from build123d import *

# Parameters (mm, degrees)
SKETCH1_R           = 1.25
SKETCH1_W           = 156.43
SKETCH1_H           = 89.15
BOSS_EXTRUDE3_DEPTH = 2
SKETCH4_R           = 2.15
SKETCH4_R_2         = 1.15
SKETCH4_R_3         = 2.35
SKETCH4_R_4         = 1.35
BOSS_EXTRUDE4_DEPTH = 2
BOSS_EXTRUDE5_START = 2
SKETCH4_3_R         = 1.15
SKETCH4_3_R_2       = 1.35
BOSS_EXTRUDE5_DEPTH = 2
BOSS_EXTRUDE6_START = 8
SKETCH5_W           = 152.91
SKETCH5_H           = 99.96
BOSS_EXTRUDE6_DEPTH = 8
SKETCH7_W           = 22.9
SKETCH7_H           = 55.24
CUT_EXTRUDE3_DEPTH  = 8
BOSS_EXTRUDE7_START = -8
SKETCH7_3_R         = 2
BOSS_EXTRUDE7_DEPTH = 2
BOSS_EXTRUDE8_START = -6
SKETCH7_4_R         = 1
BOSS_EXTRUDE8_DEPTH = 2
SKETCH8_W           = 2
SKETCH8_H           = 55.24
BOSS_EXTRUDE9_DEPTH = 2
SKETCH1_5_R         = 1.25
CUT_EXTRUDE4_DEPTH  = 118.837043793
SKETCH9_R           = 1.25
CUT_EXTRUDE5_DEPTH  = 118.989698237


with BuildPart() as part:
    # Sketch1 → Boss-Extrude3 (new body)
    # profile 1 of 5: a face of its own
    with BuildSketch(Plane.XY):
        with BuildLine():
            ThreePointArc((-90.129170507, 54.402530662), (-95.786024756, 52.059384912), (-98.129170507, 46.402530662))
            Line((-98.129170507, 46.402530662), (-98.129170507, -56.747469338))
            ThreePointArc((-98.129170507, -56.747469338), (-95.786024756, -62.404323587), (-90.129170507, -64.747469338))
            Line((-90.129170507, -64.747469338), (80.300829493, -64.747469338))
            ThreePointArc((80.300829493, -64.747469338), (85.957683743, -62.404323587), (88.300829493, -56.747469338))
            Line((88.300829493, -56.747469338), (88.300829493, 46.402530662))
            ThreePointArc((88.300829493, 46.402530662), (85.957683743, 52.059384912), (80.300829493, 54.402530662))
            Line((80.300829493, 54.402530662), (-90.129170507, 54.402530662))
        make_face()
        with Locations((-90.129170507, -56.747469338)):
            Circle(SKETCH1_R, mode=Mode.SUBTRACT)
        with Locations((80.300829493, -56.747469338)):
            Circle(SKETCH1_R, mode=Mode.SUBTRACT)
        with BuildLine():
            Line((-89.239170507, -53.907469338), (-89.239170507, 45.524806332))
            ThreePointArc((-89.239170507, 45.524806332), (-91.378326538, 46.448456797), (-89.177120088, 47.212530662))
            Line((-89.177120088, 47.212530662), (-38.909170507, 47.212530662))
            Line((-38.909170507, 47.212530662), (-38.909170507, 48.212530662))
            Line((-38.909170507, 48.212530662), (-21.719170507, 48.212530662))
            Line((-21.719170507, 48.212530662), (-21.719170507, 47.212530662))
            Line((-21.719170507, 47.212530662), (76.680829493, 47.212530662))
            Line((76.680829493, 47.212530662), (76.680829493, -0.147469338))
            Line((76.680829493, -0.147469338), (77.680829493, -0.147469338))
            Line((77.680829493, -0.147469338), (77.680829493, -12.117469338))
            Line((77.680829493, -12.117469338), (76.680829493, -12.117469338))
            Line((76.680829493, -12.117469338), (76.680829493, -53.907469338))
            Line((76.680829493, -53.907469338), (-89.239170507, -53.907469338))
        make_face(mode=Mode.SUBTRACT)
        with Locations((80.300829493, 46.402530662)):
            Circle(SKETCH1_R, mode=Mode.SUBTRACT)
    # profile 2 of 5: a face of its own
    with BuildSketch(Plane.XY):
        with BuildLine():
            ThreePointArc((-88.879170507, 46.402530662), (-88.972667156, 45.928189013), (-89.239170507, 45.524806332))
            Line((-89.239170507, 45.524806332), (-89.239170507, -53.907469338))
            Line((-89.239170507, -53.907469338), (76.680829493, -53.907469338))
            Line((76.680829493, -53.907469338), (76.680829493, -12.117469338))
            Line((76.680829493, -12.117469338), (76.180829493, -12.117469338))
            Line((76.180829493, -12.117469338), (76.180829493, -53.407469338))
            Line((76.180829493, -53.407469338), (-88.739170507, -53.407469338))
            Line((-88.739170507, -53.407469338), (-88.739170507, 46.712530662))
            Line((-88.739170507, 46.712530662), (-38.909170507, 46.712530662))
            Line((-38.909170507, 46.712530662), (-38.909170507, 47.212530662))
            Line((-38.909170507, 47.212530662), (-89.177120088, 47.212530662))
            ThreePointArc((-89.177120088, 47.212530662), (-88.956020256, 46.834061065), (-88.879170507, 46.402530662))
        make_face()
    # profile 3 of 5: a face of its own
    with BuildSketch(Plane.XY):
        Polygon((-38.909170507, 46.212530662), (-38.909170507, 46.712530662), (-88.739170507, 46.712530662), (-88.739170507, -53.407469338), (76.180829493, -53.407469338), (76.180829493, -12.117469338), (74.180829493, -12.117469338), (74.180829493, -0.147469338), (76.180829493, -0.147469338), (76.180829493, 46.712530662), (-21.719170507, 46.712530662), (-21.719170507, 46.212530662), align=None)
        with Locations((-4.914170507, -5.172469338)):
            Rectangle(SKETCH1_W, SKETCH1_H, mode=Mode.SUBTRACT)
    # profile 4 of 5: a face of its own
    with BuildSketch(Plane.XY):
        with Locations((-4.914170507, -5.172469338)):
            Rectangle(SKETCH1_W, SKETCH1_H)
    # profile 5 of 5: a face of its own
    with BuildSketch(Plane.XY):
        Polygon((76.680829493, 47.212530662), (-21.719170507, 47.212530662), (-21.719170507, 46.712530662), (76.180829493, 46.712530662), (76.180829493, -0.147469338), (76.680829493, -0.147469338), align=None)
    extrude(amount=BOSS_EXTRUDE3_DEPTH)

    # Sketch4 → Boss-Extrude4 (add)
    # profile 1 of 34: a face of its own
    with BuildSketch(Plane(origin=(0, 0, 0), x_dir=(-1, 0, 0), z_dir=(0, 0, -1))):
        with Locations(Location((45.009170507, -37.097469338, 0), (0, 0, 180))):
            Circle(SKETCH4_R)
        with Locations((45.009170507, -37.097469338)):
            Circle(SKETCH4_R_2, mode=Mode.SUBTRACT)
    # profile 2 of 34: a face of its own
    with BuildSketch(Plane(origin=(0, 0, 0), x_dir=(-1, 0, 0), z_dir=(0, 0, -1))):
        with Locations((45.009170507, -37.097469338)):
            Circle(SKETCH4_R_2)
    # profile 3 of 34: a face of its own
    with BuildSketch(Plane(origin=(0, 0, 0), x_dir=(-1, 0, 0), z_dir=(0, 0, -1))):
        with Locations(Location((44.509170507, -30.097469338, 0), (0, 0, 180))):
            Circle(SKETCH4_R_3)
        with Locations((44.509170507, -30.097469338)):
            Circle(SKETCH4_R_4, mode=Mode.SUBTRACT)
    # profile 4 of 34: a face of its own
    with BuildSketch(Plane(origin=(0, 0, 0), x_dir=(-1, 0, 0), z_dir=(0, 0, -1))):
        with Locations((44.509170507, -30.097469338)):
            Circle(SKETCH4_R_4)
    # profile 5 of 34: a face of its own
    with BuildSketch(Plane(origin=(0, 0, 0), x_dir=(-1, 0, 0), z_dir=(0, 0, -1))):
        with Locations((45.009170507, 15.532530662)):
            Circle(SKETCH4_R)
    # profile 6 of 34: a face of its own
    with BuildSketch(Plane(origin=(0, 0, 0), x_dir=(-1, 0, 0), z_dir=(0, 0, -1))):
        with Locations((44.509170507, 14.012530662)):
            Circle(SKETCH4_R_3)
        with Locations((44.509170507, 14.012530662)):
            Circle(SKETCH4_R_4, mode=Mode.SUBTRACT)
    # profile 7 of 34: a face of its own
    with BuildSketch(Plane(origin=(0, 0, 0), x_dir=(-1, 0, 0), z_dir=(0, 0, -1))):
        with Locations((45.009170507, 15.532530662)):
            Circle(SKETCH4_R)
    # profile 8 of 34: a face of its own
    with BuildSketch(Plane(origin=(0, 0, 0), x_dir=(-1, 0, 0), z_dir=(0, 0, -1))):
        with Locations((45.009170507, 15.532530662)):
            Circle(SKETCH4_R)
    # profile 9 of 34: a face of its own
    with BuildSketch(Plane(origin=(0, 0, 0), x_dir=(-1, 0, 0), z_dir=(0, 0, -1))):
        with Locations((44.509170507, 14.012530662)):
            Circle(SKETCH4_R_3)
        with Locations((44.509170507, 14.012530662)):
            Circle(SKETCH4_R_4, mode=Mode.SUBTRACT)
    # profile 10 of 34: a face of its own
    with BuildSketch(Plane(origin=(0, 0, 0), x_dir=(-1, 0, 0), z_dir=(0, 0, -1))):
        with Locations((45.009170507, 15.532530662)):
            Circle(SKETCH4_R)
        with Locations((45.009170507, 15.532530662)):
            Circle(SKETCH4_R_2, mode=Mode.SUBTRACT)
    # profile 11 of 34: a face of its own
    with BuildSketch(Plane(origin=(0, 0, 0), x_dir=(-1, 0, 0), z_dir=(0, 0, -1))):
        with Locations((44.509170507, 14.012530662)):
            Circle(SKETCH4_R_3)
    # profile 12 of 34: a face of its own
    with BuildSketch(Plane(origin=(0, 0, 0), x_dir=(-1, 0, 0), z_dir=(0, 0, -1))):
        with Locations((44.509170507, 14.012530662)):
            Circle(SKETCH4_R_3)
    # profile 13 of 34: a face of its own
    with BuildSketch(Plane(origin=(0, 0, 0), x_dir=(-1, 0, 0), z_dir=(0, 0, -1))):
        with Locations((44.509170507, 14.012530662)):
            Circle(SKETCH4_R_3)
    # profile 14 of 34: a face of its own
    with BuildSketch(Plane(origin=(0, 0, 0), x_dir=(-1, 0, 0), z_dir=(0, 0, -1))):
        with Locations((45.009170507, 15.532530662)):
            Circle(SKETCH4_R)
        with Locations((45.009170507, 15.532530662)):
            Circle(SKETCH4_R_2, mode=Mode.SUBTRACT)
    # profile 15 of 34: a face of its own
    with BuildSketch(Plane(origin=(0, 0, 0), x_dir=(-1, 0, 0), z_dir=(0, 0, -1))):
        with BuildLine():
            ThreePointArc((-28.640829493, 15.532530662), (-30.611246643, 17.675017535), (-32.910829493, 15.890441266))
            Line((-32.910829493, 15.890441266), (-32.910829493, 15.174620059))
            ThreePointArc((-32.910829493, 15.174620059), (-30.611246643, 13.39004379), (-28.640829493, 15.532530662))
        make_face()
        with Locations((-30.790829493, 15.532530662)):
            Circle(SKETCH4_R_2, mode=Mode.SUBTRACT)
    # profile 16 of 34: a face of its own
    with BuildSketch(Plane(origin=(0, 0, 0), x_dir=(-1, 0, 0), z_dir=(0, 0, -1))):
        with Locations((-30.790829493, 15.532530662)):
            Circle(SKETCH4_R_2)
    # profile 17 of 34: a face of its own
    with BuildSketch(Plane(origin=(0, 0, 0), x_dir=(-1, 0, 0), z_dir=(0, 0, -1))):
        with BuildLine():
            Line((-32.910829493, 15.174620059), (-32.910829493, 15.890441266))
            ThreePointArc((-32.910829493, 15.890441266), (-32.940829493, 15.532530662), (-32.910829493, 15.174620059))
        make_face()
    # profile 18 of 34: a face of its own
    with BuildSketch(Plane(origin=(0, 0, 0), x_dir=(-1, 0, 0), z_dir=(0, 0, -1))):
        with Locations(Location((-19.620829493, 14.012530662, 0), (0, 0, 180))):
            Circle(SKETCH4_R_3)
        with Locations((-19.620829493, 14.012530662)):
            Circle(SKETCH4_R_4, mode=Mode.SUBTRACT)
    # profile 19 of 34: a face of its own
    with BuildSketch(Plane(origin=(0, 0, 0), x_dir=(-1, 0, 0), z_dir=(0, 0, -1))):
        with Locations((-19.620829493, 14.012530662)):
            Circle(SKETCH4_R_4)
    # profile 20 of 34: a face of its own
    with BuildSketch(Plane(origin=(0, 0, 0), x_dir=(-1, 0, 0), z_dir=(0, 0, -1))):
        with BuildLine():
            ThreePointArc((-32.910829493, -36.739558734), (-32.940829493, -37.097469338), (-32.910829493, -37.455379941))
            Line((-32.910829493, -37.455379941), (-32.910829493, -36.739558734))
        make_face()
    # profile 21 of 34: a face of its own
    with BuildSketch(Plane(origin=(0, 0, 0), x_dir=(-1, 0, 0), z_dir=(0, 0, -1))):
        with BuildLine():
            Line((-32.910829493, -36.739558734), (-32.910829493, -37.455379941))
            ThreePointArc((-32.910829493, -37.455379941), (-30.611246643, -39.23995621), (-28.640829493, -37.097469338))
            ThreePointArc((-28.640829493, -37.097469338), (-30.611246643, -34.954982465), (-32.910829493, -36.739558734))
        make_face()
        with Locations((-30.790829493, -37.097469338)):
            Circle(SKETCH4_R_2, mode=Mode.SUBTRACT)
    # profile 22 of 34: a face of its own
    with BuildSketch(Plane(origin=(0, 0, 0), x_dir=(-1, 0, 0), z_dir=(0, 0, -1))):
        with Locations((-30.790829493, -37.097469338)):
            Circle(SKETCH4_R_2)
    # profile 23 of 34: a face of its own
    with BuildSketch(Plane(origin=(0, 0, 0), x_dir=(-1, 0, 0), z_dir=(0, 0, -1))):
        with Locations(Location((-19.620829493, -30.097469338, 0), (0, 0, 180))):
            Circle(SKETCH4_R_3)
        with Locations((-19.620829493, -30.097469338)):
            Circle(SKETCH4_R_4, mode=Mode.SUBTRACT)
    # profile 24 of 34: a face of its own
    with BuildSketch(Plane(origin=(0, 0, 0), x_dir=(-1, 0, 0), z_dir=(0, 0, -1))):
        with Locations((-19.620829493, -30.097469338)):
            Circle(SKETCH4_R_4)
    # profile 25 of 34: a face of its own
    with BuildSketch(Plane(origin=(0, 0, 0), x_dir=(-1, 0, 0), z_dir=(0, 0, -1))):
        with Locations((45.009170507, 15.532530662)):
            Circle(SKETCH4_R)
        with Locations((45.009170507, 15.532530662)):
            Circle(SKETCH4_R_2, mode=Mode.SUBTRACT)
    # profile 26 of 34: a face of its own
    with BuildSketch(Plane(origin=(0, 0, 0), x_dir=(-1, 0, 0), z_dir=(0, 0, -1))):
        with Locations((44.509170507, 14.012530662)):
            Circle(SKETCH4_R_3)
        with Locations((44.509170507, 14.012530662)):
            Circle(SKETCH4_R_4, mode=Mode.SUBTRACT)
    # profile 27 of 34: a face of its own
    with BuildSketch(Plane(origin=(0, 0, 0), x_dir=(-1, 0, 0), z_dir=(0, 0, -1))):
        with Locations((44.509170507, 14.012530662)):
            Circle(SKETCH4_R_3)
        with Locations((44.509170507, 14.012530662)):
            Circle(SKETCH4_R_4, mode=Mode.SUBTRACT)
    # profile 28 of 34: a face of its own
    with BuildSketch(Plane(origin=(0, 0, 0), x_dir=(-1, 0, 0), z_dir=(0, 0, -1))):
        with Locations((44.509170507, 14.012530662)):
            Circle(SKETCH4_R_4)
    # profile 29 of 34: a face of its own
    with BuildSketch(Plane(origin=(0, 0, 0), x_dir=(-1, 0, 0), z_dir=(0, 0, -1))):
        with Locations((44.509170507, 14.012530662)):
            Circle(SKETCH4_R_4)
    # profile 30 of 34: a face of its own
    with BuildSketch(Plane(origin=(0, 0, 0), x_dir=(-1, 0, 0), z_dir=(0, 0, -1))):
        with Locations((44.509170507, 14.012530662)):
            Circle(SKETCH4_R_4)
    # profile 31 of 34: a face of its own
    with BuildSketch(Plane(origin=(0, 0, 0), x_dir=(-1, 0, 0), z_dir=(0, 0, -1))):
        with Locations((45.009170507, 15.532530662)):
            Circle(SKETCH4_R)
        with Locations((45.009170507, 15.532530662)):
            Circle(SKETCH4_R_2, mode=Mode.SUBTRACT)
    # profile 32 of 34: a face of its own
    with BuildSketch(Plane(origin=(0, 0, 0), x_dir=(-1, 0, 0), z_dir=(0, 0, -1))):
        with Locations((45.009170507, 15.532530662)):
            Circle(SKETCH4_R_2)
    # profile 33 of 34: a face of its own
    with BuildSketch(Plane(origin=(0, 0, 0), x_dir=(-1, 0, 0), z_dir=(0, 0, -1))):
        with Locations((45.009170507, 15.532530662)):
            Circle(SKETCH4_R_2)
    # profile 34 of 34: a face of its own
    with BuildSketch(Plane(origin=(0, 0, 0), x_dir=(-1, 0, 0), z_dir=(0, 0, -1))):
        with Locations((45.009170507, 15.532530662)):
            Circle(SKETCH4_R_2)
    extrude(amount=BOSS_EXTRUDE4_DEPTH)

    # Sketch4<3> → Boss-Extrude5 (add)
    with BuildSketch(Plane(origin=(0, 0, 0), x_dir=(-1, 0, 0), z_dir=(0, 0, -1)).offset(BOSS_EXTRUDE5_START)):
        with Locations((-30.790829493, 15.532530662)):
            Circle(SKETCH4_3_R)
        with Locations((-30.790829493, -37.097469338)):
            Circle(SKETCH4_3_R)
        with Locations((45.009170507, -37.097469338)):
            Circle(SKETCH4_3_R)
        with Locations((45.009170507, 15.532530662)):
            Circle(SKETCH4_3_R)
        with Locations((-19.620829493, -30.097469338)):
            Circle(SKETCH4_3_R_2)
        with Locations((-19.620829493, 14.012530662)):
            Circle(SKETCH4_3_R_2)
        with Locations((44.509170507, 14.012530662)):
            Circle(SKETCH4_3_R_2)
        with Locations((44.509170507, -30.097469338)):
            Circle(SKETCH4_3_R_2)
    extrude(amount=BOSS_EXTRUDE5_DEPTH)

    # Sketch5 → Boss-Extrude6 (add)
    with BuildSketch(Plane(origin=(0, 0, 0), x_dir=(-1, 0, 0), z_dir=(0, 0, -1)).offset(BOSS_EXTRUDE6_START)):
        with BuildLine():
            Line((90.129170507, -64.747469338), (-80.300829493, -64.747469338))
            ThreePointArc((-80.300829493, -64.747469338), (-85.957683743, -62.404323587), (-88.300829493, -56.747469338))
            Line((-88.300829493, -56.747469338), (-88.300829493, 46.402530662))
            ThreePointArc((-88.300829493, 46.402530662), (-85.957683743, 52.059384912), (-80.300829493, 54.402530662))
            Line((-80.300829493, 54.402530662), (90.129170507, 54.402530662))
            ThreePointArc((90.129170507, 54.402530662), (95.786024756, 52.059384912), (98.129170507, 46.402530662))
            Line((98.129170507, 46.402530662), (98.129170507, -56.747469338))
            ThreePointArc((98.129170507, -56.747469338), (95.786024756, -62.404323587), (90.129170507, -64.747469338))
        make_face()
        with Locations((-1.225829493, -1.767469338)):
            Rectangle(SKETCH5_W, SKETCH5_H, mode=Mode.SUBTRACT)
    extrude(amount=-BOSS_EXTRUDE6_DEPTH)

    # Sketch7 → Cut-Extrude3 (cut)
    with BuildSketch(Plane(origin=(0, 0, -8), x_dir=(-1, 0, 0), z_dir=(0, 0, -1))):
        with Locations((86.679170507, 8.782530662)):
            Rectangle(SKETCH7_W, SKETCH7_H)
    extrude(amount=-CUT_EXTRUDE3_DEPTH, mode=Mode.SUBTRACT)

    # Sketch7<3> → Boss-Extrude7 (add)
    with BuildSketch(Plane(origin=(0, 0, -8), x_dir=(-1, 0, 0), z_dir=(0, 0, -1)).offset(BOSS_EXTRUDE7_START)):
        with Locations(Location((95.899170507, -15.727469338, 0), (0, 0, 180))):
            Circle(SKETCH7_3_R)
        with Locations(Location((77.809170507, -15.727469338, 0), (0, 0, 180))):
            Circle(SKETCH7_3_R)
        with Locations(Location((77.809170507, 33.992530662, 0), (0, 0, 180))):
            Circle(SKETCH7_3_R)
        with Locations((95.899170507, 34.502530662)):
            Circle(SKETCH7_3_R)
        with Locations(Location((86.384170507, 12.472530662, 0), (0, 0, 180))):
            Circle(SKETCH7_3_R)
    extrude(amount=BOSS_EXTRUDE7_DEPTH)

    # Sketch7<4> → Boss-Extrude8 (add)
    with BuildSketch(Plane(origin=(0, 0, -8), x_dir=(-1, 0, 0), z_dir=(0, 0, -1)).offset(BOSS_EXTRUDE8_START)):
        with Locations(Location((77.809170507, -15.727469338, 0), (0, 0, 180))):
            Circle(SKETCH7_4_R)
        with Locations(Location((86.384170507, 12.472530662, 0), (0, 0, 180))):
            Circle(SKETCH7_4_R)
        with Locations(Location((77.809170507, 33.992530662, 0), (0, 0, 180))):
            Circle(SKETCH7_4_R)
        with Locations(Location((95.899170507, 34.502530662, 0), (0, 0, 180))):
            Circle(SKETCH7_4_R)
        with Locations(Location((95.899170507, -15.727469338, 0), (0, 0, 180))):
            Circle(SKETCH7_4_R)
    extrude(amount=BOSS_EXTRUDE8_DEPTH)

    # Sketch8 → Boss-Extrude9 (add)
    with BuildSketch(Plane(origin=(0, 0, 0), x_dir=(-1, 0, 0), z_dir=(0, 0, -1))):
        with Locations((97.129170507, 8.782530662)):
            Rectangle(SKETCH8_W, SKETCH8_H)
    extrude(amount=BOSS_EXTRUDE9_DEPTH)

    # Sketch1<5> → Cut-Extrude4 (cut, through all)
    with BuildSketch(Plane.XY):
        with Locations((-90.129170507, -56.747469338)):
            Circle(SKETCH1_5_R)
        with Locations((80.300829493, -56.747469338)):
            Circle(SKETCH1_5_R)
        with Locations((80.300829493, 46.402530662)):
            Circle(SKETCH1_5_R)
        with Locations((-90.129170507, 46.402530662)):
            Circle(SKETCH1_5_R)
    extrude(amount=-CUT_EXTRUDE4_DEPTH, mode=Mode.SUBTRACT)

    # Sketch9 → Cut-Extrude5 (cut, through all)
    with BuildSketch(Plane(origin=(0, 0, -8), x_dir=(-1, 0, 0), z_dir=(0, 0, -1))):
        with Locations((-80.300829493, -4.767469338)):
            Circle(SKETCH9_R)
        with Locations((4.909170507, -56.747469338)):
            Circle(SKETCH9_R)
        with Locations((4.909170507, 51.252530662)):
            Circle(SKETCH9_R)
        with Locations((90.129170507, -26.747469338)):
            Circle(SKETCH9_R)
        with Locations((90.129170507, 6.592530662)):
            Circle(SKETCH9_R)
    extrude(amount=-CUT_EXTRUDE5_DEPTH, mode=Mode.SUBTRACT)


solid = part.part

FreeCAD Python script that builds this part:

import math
import FreeCAD as App
import Part
import Sketcher

V = App.Vector

doc = App.newDocument("Part")
body = doc.addObject("PartDesign::Body", "Body")

# Sketch on XY plane
sketch1 = doc.addObject("Sketcher::SketchObject", "Sketch")
body.addObject(sketch1)
sketch1.AttachmentSupport = (doc.XY_Plane, [""])
sketch1.MapMode = "FlatFace"
sketch1.addGeometry(Part.ArcOfCircle(Part.Circle(V(-90.129171, 46.402531, 0), V(0, 0, 1), 8), math.radians(90), math.radians(180)), False)
sketch1.addGeometry(Part.LineSegment(V(-98.129171, 46.402531, 0), V(-98.129171, -56.747469, 0)), False)
sketch1.addGeometry(Part.ArcOfCircle(Part.Circle(V(-90.129171, -56.747469, 0), V(0, 0, 1), 8), math.radians(-180), math.radians(-90)), False)
sketch1.addGeometry(Part.LineSegment(V(-90.129171, -64.747469, 0), V(80.300829, -64.747469, 0)), False)
sketch1.addGeometry(Part.ArcOfCircle(Part.Circle(V(80.300829, -56.747469, 0), V(0, 0, 1), 8), math.radians(-90), math.radians(0)), False)
sketch1.addGeometry(Part.LineSegment(V(88.300829, -56.747469, 0), V(88.300829, 46.402531, 0)), False)
sketch1.addGeometry(Part.ArcOfCircle(Part.Circle(V(80.300829, 46.402531, 0), V(0, 0, 1), 8), math.radians(0), math.radians(90)), False)
sketch1.addGeometry(Part.LineSegment(V(80.300829, 54.402531, 0), V(-90.129171, 54.402531, 0)), False)
sketch1.addGeometry(Part.Circle(V(-90.129171, -56.747469, 0), V(0, 0, 1), 1.25), False)
sketch1.addGeometry(Part.Circle(V(80.300829, -56.747469, 0), V(0, 0, 1), 1.25), False)
sketch1.addGeometry(Part.LineSegment(V(77.680829, -12.117469, 0), V(74.180829, -12.117469, 0)), False)
sketch1.addGeometry(Part.LineSegment(V(74.180829, -12.117469, 0), V(74.180829, -0.147469, 0)), False)
sketch1.addGeometry(Part.LineSegment(V(74.180829, -0.147469, 0), V(77.680829, -0.147469, 0)), False)
sketch1.addGeometry(Part.LineSegment(V(77.680829, -0.147469, 0), V(77.680829, -12.117469, 0)), False)
sketch1.addGeometry(Part.ArcOfCircle(Part.Circle(V(-90.129171, 46.402531, 0), V(0, 0, 1), 1.25), math.radians(40.39098), math.radians(315.397875)), False)
sketch1.addGeometry(Part.ArcOfCircle(Part.Circle(V(-90.129171, 46.402531, 0), V(0, 0, 1), 1.25), math.radians(0), math.radians(40.39098)), False)
sketch1.addGeometry(Part.ArcOfCircle(Part.Circle(V(-90.129171, 46.402531, 0), V(0, 0, 1), 1.25), math.radians(-44.602125), math.radians(0)), False)
sketch1.addGeometry(Part.LineSegment(V(-38.909171, 48.212531, 0), V(-21.719171, 48.212531, 0)), False)
sketch1.addGeometry(Part.LineSegment(V(-21.719171, 48.212531, 0), V(-21.719171, 46.212531, 0)), False)
sketch1.addGeometry(Part.LineSegment(V(-21.719171, 46.212531, 0), V(-38.909171, 46.212531, 0)), False)
sketch1.addGeometry(Part.LineSegment(V(-38.909171, 46.212531, 0), V(-38.909171, 48.212531, 0)), False)
sketch1.addGeometry(Part.Circle(V(80.300829, 46.402531, 0), V(0, 0, 1), 1.25), False)
sketch1.addConstraint(Sketcher.Constraint("Tangent", 0, 2, 1, 1))
sketch1.addConstraint(Sketcher.Constraint("Tangent", 1, 2, 2, 1))
sketch1.addConstraint(Sketcher.Constraint("Tangent", 2, 2, 3, 1))
sketch1.addConstraint(Sketcher.Constraint("Tangent", 3, 2, 4, 1))
sketch1.addConstraint(Sketcher.Constraint("Tangent", 4, 2, 5, 1))
sketch1.addConstraint(Sketcher.Constraint("Tangent", 5, 2, 6, 1))
sketch1.addConstraint(Sketcher.Constraint("Tangent", 6, 2, 7, 1))
sketch1.addConstraint(Sketcher.Constraint("Tangent", 7, 2, 0, 1))
sketch1.addConstraint(Sketcher.Constraint("Coincident", 10, 2, 11, 1))
sketch1.addConstraint(Sketcher.Constraint("Coincident", 11, 2, 12, 1))
sketch1.addConstraint(Sketcher.Constraint("Coincident", 12, 2, 13, 1))
sketch1.addConstraint(Sketcher.Constraint("Coincident", 13, 2, 10, 1))
sketch1.addConstraint(Sketcher.Constraint("Tangent", 14, 1, 15, 2))
sketch1.addConstraint(Sketcher.Constraint("Tangent", 15, 1, 16, 2))
sketch1.addConstraint(Sketcher.Constraint("Tangent", 16, 1, 14, 2))
sketch1.addConstraint(Sketcher.Constraint("Coincident", 17, 2, 18, 1))
sketch1.addConstraint(Sketcher.Constraint("Coincident", 18, 2, 19, 1))
sketch1.addConstraint(Sketcher.Constraint("Coincident", 19, 2, 20, 1))
sketch1.addConstraint(Sketcher.Constraint("Coincident", 20, 2, 17, 1))
sketch1.addConstraint(Sketcher.Constraint("Vertical", 1))
sketch1.addConstraint(Sketcher.Constraint("Horizontal", 3))
sketch1.addConstraint(Sketcher.Constraint("Vertical", 5))
sketch1.addConstraint(Sketcher.Constraint("Horizontal", 7))
sketch1.addConstraint(Sketcher.Constraint("Horizontal", 10))
sketch1.addConstraint(Sketcher.Constraint("Vertical", 11))
sketch1.addConstraint(Sketcher.Constraint("Horizontal", 12))
sketch1.addConstraint(Sketcher.Constraint("Vertical", 13))
sketch1.addConstraint(Sketcher.Constraint("Horizontal", 17))
sketch1.addConstraint(Sketcher.Constraint("Vertical", 18))
sketch1.addConstraint(Sketcher.Constraint("Horizontal", 19))
sketch1.addConstraint(Sketcher.Constraint("Vertical", 20))
sketch1.addConstraint(Sketcher.Constraint("Coincident", 8, 3, 2, 3))
sketch1.addConstraint(Sketcher.Constraint("Coincident", 9, 3, 4, 3))
sketch1.addConstraint(Sketcher.Constraint("Coincident", 14, 3, 0, 3))
sketch1.addConstraint(Sketcher.Constraint("Coincident", 21, 3, 6, 3))
sketch1.addConstraint(Sketcher.Constraint("Equal", 0, 2))
sketch1.addConstraint(Sketcher.Constraint("Equal", 2, 4))
sketch1.addConstraint(Sketcher.Constraint("Equal", 4, 6))
sketch1.addConstraint(Sketcher.Constraint("Equal", 8, 9))
sketch1.addConstraint(Sketcher.Constraint("Equal", 9, 14))
sketch1.addConstraint(Sketcher.Constraint("Equal", 16, 21))
sketch1.addConstraint(Sketcher.Constraint("Horizontal", 5, 2, 15, 1))
sketch1.addConstraint(Sketcher.Constraint("Radius", 0, 8.0))
sketch1.addConstraint(Sketcher.Constraint("Diameter", 8, 2.5))
sketch1.addConstraint(Sketcher.Constraint("DistanceY", 18, 2, 18, 1, 2.0))
sketch1.addConstraint(Sketcher.Constraint("DistanceX", 10, 2, 10, 1, 3.5))
sketch1.addConstraint(Sketcher.Constraint("DistanceY", 14, 1, 17, 2, 1.0))
sketch1.addConstraint(Sketcher.Constraint("DistanceX", 3, 1, 3, 2, 170.43))
sketch1.addConstraint(Sketcher.Constraint("DistanceX", 17, 1, 17, 2, 17.19))
sketch1.addConstraint(Sketcher.Constraint("DistanceY", 1, 2, 1, 1, 103.15))
sketch1.addConstraint(Sketcher.Constraint("DistanceY", 11, 1, 11, 2, 11.97))
sketch1.addConstraint(Sketcher.Constraint("DistanceX", 10, 2, 4, 3, 6.12))
sketch1.addConstraint(Sketcher.Constraint("DistanceY", 4, 3, 10, 2, 44.63))
sketch1.addConstraint(Sketcher.Constraint("DistanceY", 16, 3, 14, 1, 0.81))
sketch1.addConstraint(Sketcher.Constraint("DistanceX", 16, 1, 15, 1, 0.36))
sketch1.addConstraint(Sketcher.Constraint("DistanceX", 15, 1, 17, 2, 67.16))
sketch1.addConstraint(Sketcher.Constraint("DistanceX", 0, 3, -1, 1, 90.129171))
sketch1.addConstraint(Sketcher.Constraint("DistanceY", -1, 1, 0, 3, 46.402531))
pad1 = doc.addObject("PartDesign::Pad", "Pad")
body.addObject(pad1)
pad1.Profile = sketch1
pad1.Length = 2

# Sketch on XY plane
sketch2 = doc.addObject("Sketcher::SketchObject", "Sketch001")
body.addObject(sketch2)
sketch2.AttachmentSupport = (doc.XY_Plane, [""])
sketch2.MapMode = "FlatFace"
sketch2.addGeometry(Part.Circle(V(-45.009171, -37.097469, 0), V(0, 0, 1), 2.15), False)
sketch2.addGeometry(Part.Circle(V(-44.509171, -30.097469, 0), V(0, 0, 1), 2.35), False)
sketch2.addGeometry(Part.ArcOfCircle(Part.Circle(V(-45.009171, 15.532531, 0), V(0, 0, 1), 2.15), math.radians(4.244121), math.radians(212.172848)), False)
sketch2.addGeometry(Part.ArcOfCircle(Part.Circle(V(-44.509171, 14.012531, 0), V(0, 0, 1), 2.35), math.radians(170.813399), math.radians(405.60357)), False)
sketch2.addGeometry(Part.ArcOfCircle(Part.Circle(V(30.790829, 15.532531, 0), V(0, 0, 1), 2.15), math.radians(9.582643), math.radians(180)), False)
sketch2.addGeometry(Part.ArcOfCircle(Part.Circle(V(30.790829, 15.532531, 0), V(0, 0, 1), 2.15), math.radians(-9.582643), math.radians(9.582643)), False)
sketch2.addGeometry(Part.ArcOfCircle(Part.Circle(V(30.790829, 15.532531, 0), V(0, 0, 1), 2.15), math.radians(-180), math.radians(-9.582643)), False)
sketch2.addGeometry(Part.Circle(V(19.620829, 14.012531, 0), V(0, 0, 1), 2.35), False)
sketch2.addGeometry(Part.ArcOfCircle(Part.Circle(V(30.790829, -37.097469, 0), V(0, 0, 1), 2.15), math.radians(-9.582643), math.radians(9.582643)), False)
sketch2.addGeometry(Part.ArcOfCircle(Part.Circle(V(30.790829, -37.097469, 0), V(0, 0, 1), 2.15), math.radians(-180), math.radians(-9.582643)), False)
sketch2.addGeometry(Part.ArcOfCircle(Part.Circle(V(30.790829, -37.097469, 0), V(0, 0, 1), 2.15), math.radians(9.582643), math.radians(180)), False)
sketch2.addGeometry(Part.Circle(V(19.620829, -30.097469, 0), V(0, 0, 1), 2.35), False)
sketch2.addConstraint(Sketcher.Constraint("Coincident", 2, 1, 3, 2))
sketch2.addConstraint(Sketcher.Constraint("Coincident", 3, 1, 2, 2))
sketch2.addConstraint(Sketcher.Constraint("Tangent", 4, 1, 5, 2))
sketch2.addConstraint(Sketcher.Constraint("Tangent", 5, 1, 6, 2))
sketch2.addConstraint(Sketcher.Constraint("Tangent", 6, 1, 4, 2))
sketch2.addConstraint(Sketcher.Constraint("Tangent", 8, 1, 9, 2))
sketch2.addConstraint(Sketcher.Constraint("Tangent", 9, 1, 10, 2))
sketch2.addConstraint(Sketcher.Constraint("Tangent", 10, 1, 8, 2))
sketch2.addConstraint(Sketcher.Constraint("Equal", 0, 2))
sketch2.addConstraint(Sketcher.Constraint("Equal", 1, 3))
sketch2.addConstraint(Sketcher.Constraint("Equal", 2, 4))
sketch2.addConstraint(Sketcher.Constraint("Equal", 3, 7))
sketch2.addConstraint(Sketcher.Constraint("Equal", 6, 8))
sketch2.addConstraint(Sketcher.Constraint("Equal", 7, 11))
sketch2.addConstraint(Sketcher.Constraint("Horizontal", 2, 3, 4, 3))
sketch2.addConstraint(Sketcher.Constraint("Horizontal", 3, 3, 7, 3))
sketch2.addConstraint(Sketcher.Constraint("Horizontal", 0, 3, 8, 3))
sketch2.addConstraint(Sketcher.Constraint("Horizontal", 1, 3, 11, 3))
sketch2.addConstraint(Sketcher.Constraint("Horizontal", 5, 3, 6, 1))
sketch2.addConstraint(Sketcher.Constraint("Horizontal", 10, 3, 9, 1))
sketch2.addConstraint(Sketcher.Constraint("Vertical", 0, 3, 2, 3))
sketch2.addConstraint(Sketcher.Constraint("Vertical", 1, 3, 3, 3))
sketch2.addConstraint(Sketcher.Constraint("Vertical", 6, 3, 8, 3))
sketch2.addConstraint(Sketcher.Constraint("Vertical", 7, 3, 11, 3))
sketch2.addConstraint(Sketcher.Constraint("Vertical", 4, 1, 5, 1))
sketch2.addConstraint(Sketcher.Constraint("Vertical", 5, 1, 8, 1))
sketch2.addConstraint(Sketcher.Constraint("Vertical", 8, 1, 10, 1))
sketch2.addConstraint(Sketcher.Constraint("Diameter", 0, 4.3))
sketch2.addConstraint(Sketcher.Constraint("Diameter", 1, 4.7))
sketch2.addConstraint(Sketcher.Constraint("DistanceY", 0, 3, 1, 3, 7.0))
sketch2.addConstraint(Sketcher.Constraint("DistanceX", 0, 3, 1, 3, 0.5))
sketch2.addConstraint(Sketcher.Constraint("DistanceX", 3, 3, 4, 3, 75.3))
sketch2.addConstraint(Sketcher.Constraint("DistanceY", 1, 3, 2, 3, 45.63))
sketch2.addConstraint(Sketcher.Constraint("DistanceY", 3, 3, 2, 3, 1.52))
sketch2.addConstraint(Sketcher.Constraint("DistanceX", 7, 3, 5, 3, 11.17))
sketch2.addConstraint(Sketcher.Constraint("DistanceX", 6, 3, 4, 1, 2.12))
sketch2.addConstraint(Sketcher.Constraint("DistanceX", 0, 3, -1, 1, 45.009171))
sketch2.addConstraint(Sketcher.Constraint("DistanceY", 0, 3, -1, 1, 37.097469))
pad2 = doc.addObject("PartDesign::Pad", "Pad001")
body.addObject(pad2)
pad2.Profile = sketch2
pad2.Length = 2
pad2.Reversed = True

# Sketch on XY plane
sketch3 = doc.addObject("Sketcher::SketchObject", "Sketch002")
body.addObject(sketch3)
sketch3.AttachmentSupport = (doc.XY_Plane, [""])
sketch3.MapMode = "FlatFace"
sketch3.AttachmentOffset = App.Placement(V(0, 0, -2), App.Rotation())
sketch3.addGeometry(Part.Circle(V(30.790829, 15.532531, 0), V(0, 0, 1), 1.15), False)
sketch3.addGeometry(Part.Circle(V(30.790829, -37.097469, 0), V(0, 0, 1), 1.15), False)
sketch3.addGeometry(Part.Circle(V(-45.009171, -37.097469, 0), V(0, 0, 1), 1.15), False)
sketch3.addGeometry(Part.ArcOfCircle(Part.Circle(V(-45.009171, 15.532531, 0), V(0, 0, 1), 1.15), math.radians(-15.836772), math.radians(232.253741)), False)
sketch3.addGeometry(Part.ArcOfCircle(Part.Circle(V(-44.509171, 14.012531, 0), V(0, 0, 1), 1.35), math.radians(153.105988), math.radians(423.31098)), False)
sketch3.addGeometry(Part.Circle(V(19.620829, -30.097469, 0), V(0, 0, 1), 1.35), False)
sketch3.addGeometry(Part.Circle(V(19.620829, 14.012531, 0), V(0, 0, 1), 1.35), False)
sketch3.addGeometry(Part.Circle(V(-44.509171, -30.097469, 0), V(0, 0, 1), 1.35), False)
sketch3.addConstraint(Sketcher.Constraint("Coincident", 3, 1, 4, 2))
sketch3.addConstraint(Sketcher.Constraint("Coincident", 4, 1, 3, 2))
sketch3.addConstraint(Sketcher.Constraint("Equal", 0, 1))
sketch3.addConstraint(Sketcher.Constraint("Equal", 1, 2))
sketch3.addConstraint(Sketcher.Constraint("Equal", 2, 3))
sketch3.addConstraint(Sketcher.Constraint("Equal", 4, 5))
sketch3.addConstraint(Sketcher.Constraint("Equal", 5, 6))
sketch3.addConstraint(Sketcher.Constraint("Equal", 6, 7))
sketch3.addConstraint(Sketcher.Constraint("Horizontal", 1, 3, 2, 3))
sketch3.addConstraint(Sketcher.Constraint("Horizontal", 0, 3, 3, 3))
sketch3.addConstraint(Sketcher.Constraint("Horizontal", 4, 3, 6, 3))
sketch3.addConstraint(Sketcher.Constraint("Horizontal", 5, 3, 7, 3))
sketch3.addConstraint(Sketcher.Constraint("Vertical", 0, 3, 1, 3))
sketch3.addConstraint(Sketcher.Constraint("Vertical", 2, 3, 3, 3))
sketch3.addConstraint(Sketcher.Constraint("Vertical", 5, 3, 6, 3))
sketch3.addConstraint(Sketcher.Constraint("Vertical", 4, 3, 7, 3))
sketch3.addConstraint(Sketcher.Constraint("Diameter", 0, 2.3))
sketch3.addConstraint(Sketcher.Constraint("Diameter", 5, 2.7))
sketch3.addConstraint(Sketcher.Constraint("DistanceY", 1, 3, 5, 3, 7.0))
sketch3.addConstraint(Sketcher.Constraint("DistanceX", 2, 3, 1, 3, 75.8))
sketch3.addConstraint(Sketcher.Constraint("DistanceX", 3, 3, 4, 3, 0.5))
sketch3.addConstraint(Sketcher.Constraint("DistanceY", 1, 3, 0, 3, 52.63))
sketch3.addConstraint(Sketcher.Constraint("DistanceY", 4, 3, 3, 3, 1.52))
sketch3.addConstraint(Sketcher.Constraint("DistanceX", 5, 3, 1, 3, 11.17))
sketch3.addConstraint(Sketcher.Constraint("DistanceY", -1, 1, 3, 1, 15.218698))
sketch3.addConstraint(Sketcher.Constraint("DistanceX", -1, 1, 0, 3, 30.790829))
pad3 = doc.addObject("PartDesign::Pad", "Pad002")
body.addObject(pad3)
pad3.Profile = sketch3
pad3.Length = 2
pad3.Reversed = True

# Sketch on XY plane
sketch4 = doc.addObject("Sketcher::SketchObject", "Sketch003")
body.addObject(sketch4)
sketch4.AttachmentSupport = (doc.XY_Plane, [""])
sketch4.MapMode = "FlatFace"
sketch4.AttachmentOffset = App.Placement(V(0, 0, -8), App.Rotation())
sketch4.addGeometry(Part.LineSegment(V(80.300829, -64.747469, 0), V(-90.129171, -64.747469, 0)), False)
sketch4.addGeometry(Part.ArcOfCircle(Part.Circle(V(-90.129171, -56.747469, 0), V(0, 0, 1), 8), math.radians(-180), math.radians(-90)), False)
sketch4.addGeometry(Part.LineSegment(V(-98.129171, -56.747469, 0), V(-98.129171, 46.402531, 0)), False)
sketch4.addGeometry(Part.ArcOfCircle(Part.Circle(V(-90.129171, 46.402531, 0), V(0, 0, 1), 8), math.radians(90), math.radians(180)), False)
sketch4.addGeometry(Part.LineSegment(V(-90.129171, 54.402531, 0), V(80.300829, 54.402531, 0)), False)
sketch4.addGeometry(Part.ArcOfCircle(Part.Circle(V(80.300829, 46.402531, 0), V(0, 0, 1), 8), math.radians(0), math.radians(90)), False)
sketch4.addGeometry(Part.LineSegment(V(88.300829, 46.402531, 0), V(88.300829, -56.747469, 0)), False)
sketch4.addGeometry(Part.ArcOfCircle(Part.Circle(V(80.300829, -56.747469, 0), V(0, 0, 1), 8), math.radians(-90), math.radians(0)), False)
sketch4.addGeometry(Part.LineSegment(V(77.680829, -51.747469, 0), V(77.680829, 48.212531, 0)), False)
sketch4.addGeometry(Part.LineSegment(V(77.680829, 48.212531, 0), V(-75.229171, 48.212531, 0)), False)
sketch4.addGeometry(Part.LineSegment(V(-75.229171, 48.212531, 0), V(-75.229171, -51.747469, 0)), False)
sketch4.addGeometry(Part.LineSegment(V(-75.229171, -51.747469, 0), V(77.680829, -51.747469, 0)), False)
sketch4.addConstraint(Sketcher.Constraint("Tangent", 0, 2, 1, 2))
sketch4.addConstraint(Sketcher.Constraint("Tangent", 1, 1, 2, 1))
sketch4.addConstraint(Sketcher.Constraint("Tangent", 2, 2, 3, 2))
sketch4.addConstraint(Sketcher.Constraint("Tangent", 3, 1, 4, 1))
sketch4.addConstraint(Sketcher.Constraint("Tangent", 4, 2, 5, 2))
sketch4.addConstraint(Sketcher.Constraint("Tangent", 5, 1, 6, 1))
sketch4.addConstraint(Sketcher.Constraint("Tangent", 6, 2, 7, 2))
sketch4.addConstraint(Sketcher.Constraint("Tangent", 7, 1, 0, 1))
sketch4.addConstraint(Sketcher.Constraint("Coincident", 8, 2, 9, 1))
sketch4.addConstraint(Sketcher.Constraint("Coincident", 9, 2, 10, 1))
sketch4.addConstraint(Sketcher.Constraint("Coincident", 10, 2, 11, 1))
sketch4.addConstraint(Sketcher.Constraint("Coincident", 11, 2, 8, 1))
sketch4.addConstraint(Sketcher.Constraint("Horizontal", 0))
sketch4.addConstraint(Sketcher.Constraint("Vertical", 2))
sketch4.addConstraint(Sketcher.Constraint("Horizontal", 4))
sketch4.addConstraint(Sketcher.Constraint("Vertical", 6))
sketch4.addConstraint(Sketcher.Constraint("Vertical", 8))
sketch4.addConstraint(Sketcher.Constraint("Horizontal", 9))
sketch4.addConstraint(Sketcher.Constraint("Vertical", 10))
sketch4.addConstraint(Sketcher.Constraint("Horizontal", 11))
sketch4.addConstraint(Sketcher.Constraint("Equal", 1, 3))
sketch4.addConstraint(Sketcher.Constraint("Equal", 3, 5))
sketch4.addConstraint(Sketcher.Constraint("Equal", 5, 7))
sketch4.addConstraint(Sketcher.Constraint("Radius", 1, 8.0))
sketch4.addConstraint(Sketcher.Constraint("DistanceY", 1, 3, 10, 2, 5.0))
sketch4.addConstraint(Sketcher.Constraint("DistanceX", 0, 2, 0, 1, 170.43))
sketch4.addConstraint(Sketcher.Constraint("DistanceX", 9, 2, 9, 1, 152.91))
sketch4.addConstraint(Sketcher.Constraint("DistanceY", 2, 1, 2, 2, 103.15))
sketch4.addConstraint(Sketcher.Constraint("DistanceY", 8, 1, 8, 2, 99.96))
sketch4.addConstraint(Sketcher.Constraint("DistanceX", 3, 3, 9, 2, 14.9))
sketch4.addConstraint(Sketcher.Constraint("DistanceX", 1, 3, -1, 1, 90.129171))
sketch4.addConstraint(Sketcher.Constraint("DistanceY", 1, 3, -1, 1, 56.747469))
pad4 = doc.addObject("PartDesign::Pad", "Pad003")
body.addObject(pad4)
pad4.Profile = sketch4
pad4.Length = 8

# Sketch on XY plane
sketch5 = doc.addObject("Sketcher::SketchObject", "Sketch004")
body.addObject(sketch5)
sketch5.AttachmentSupport = (doc.XY_Plane, [""])
sketch5.MapMode = "FlatFace"
sketch5.AttachmentOffset = App.Placement(V(0, 0, -8), App.Rotation())
sketch5.addGeometry(Part.LineSegment(V(-75.229171, 36.402531, 0), V(-75.229171, -18.837469, 0)), False)
sketch5.addGeometry(Part.LineSegment(V(-75.229171, -18.837469, 0), V(-98.129171, -18.837469, 0)), False)
sketch5.addGeometry(Part.LineSegment(V(-98.129171, -18.837469, 0), V(-98.129171, 36.402531, 0)), False)
sketch5.addGeometry(Part.LineSegment(V(-98.129171, 36.402531, 0), V(-75.229171, 36.402531, 0)), False)
sketch5.addConstraint(Sketcher.Constraint("Coincident", 0, 2, 1, 1))
sketch5.addConstraint(Sketcher.Constraint("Coincident", 1, 2, 2, 1))
sketch5.addConstraint(Sketcher.Constraint("Coincident", 2, 2, 3, 1))
sketch5.addConstraint(Sketcher.Constraint("Coincident", 3, 2, 0, 1))
sketch5.addConstraint(Sketcher.Constraint("Vertical", 0))
sketch5.addConstraint(Sketcher.Constraint("Horizontal", 1))
sketch5.addConstraint(Sketcher.Constraint("Vertical", 2))
sketch5.addConstraint(Sketcher.Constraint("Horizontal", 3))
sketch5.addConstraint(Sketcher.Constraint("DistanceX", 1, 2, 1, 1, 22.9))
sketch5.addConstraint(Sketcher.Constraint("DistanceY", 0, 2, 0, 1, 55.24))
sketch5.addConstraint(Sketcher.Constraint("DistanceX", 0, 2, -1, 1, 75.229171))
sketch5.addConstraint(Sketcher.Constraint("DistanceY", 0, 2, -1, 1, 18.837469))
pocket1 = doc.addObject("PartDesign::Pocket", "Pocket")
body.addObject(pocket1)
pocket1.Profile = sketch5
pocket1.Length = 8
pocket1.Reversed = True

# Sketch on XY plane
sketch6 = doc.addObject("Sketcher::SketchObject", "Sketch005")
body.addObject(sketch6)
sketch6.AttachmentSupport = (doc.XY_Plane, [""])
sketch6.MapMode = "FlatFace"
sketch6.addGeometry(Part.Circle(V(-95.899171, -15.727469, 0), V(0, 0, 1), 2), False)
sketch6.addGeometry(Part.Circle(V(-77.809171, -15.727469, 0), V(0, 0, 1), 2), False)
sketch6.addGeometry(Part.Circle(V(-77.809171, 33.992531, 0), V(0, 0, 1), 2), False)
sketch6.addGeometry(Part.Circle(V(-95.899171, 34.502531, 0), V(0, 0, 1), 2), False)
sketch6.addGeometry(Part.Circle(V(-86.384171, 12.472531, 0), V(0, 0, 1), 2), False)
sketch6.addConstraint(Sketcher.Constraint("Equal", 0, 1))
sketch6.addConstraint(Sketcher.Constraint("Equal", 1, 2))
sketch6.addConstraint(Sketcher.Constraint("Equal", 2, 3))
sketch6.addConstraint(Sketcher.Constraint("Equal", 3, 4))
sketch6.addConstraint(Sketcher.Constraint("Horizontal", 0, 3, 1, 3))
sketch6.addConstraint(Sketcher.Constraint("Vertical", 1, 3, 2, 3))
sketch6.addConstraint(Sketcher.Constraint("Vertical", 0, 3, 3, 3))
sketch6.addConstraint(Sketcher.Constraint("Diameter", 0, 4.0))
sketch6.addConstraint(Sketcher.Constraint("DistanceY", 1, 3, 4, 3, 28.2))
sketch6.addConstraint(Sketcher.Constraint("DistanceX", 0, 3, 1, 3, 18.09))
sketch6.addConstraint(Sketcher.Constraint("DistanceY", 1, 3, 2, 3, 49.72))
sketch6.addConstraint(Sketcher.Constraint("DistanceY", 2, 3, 3, 3, 0.51))
sketch6.addConstraint(Sketcher.Constraint("DistanceX", 4, 3, 2, 3, 8.575))
sketch6.addConstraint(Sketcher.Constraint("DistanceX", 0, 3, -1, 1, 95.899171))
sketch6.addConstraint(Sketcher.Constraint("DistanceY", 0, 3, -1, 1, 15.727469))
pad5 = doc.addObject("PartDesign::Pad", "Pad004")
body.addObject(pad5)
pad5.Profile = sketch6
pad5.Length = 2
pad5.Reversed = True

# Sketch on XY plane
sketch7 = doc.addObject("Sketcher::SketchObject", "Sketch006")
body.addObject(sketch7)
sketch7.AttachmentSupport = (doc.XY_Plane, [""])
sketch7.MapMode = "FlatFace"
sketch7.AttachmentOffset = App.Placement(V(0, 0, -2), App.Rotation())
sketch7.addGeometry(Part.Circle(V(-77.809171, -15.727469, 0), V(0, 0, 1), 1), False)
sketch7.addGeometry(Part.Circle(V(-86.384171, 12.472531, 0), V(0, 0, 1), 1), False)
sketch7.addGeometry(Part.Circle(V(-77.809171, 33.992531, 0), V(0, 0, 1), 1), False)
sketch7.addGeometry(Part.Circle(V(-95.899171, 34.502531, 0), V(0, 0, 1), 1), False)
sketch7.addGeometry(Part.Circle(V(-95.899171, -15.727469, 0), V(0, 0, 1), 1), False)
sketch7.addConstraint(Sketcher.Constraint("Equal", 0, 1))
sketch7.addConstraint(Sketcher.Constraint("Equal", 1, 2))
sketch7.addConstraint(Sketcher.Constraint("Equal", 2, 3))
sketch7.addConstraint(Sketcher.Constraint("Equal", 3, 4))
sketch7.addConstraint(Sketcher.Constraint("Horizontal", 0, 3, 4, 3))
sketch7.addConstraint(Sketcher.Constraint("Vertical", 0, 3, 2, 3))
sketch7.addConstraint(Sketcher.Constraint("Vertical", 3, 3, 4, 3))
sketch7.addConstraint(Sketcher.Constraint("Diameter", 0, 2.0))
sketch7.addConstraint(Sketcher.Constraint("DistanceY", 0, 3, 1, 3, 28.2))
sketch7.addConstraint(Sketcher.Constraint("DistanceY", 1, 3, 2, 3, 21.52))
sketch7.addConstraint(Sketcher.Constraint("DistanceX", 3, 3, 2, 3, 18.09))
sketch7.addConstraint(Sketcher.Constraint("DistanceY", 2, 3, 3, 3, 0.51))
sketch7.addConstraint(Sketcher.Constraint("DistanceX", 1, 3, 0, 3, 8.575))
sketch7.addConstraint(Sketcher.Constraint("DistanceX", 0, 3, -1, 1, 77.809171))
sketch7.addConstraint(Sketcher.Constraint("DistanceY", 0, 3, -1, 1, 15.727469))
pad6 = doc.addObject("PartDesign::Pad", "Pad005")
body.addObject(pad6)
pad6.Profile = sketch7
pad6.Length = 2
pad6.Reversed = True

# Sketch on XY plane
sketch8 = doc.addObject("Sketcher::SketchObject", "Sketch007")
body.addObject(sketch8)
sketch8.AttachmentSupport = (doc.XY_Plane, [""])
sketch8.MapMode = "FlatFace"
sketch8.addGeometry(Part.LineSegment(V(-96.129171, 36.402531, 0), V(-96.129171, -18.837469, 0)), False)
sketch8.addGeometry(Part.LineSegment(V(-96.129171, -18.837469, 0), V(-98.129171, -18.837469, 0)), False)
sketch8.addGeometry(Part.LineSegment(V(-98.129171, -18.837469, 0), V(-98.129171, 36.402531, 0)), False)
sketch8.addGeometry(Part.LineSegment(V(-98.129171, 36.402531, 0), V(-96.129171, 36.402531, 0)), False)
sketch8.addConstraint(Sketcher.Constraint("Coincident", 0, 2, 1, 1))
sketch8.addConstraint(Sketcher.Constraint("Coincident", 1, 2, 2, 1))
sketch8.addConstraint(Sketcher.Constraint("Coincident", 2, 2, 3, 1))
sketch8.addConstraint(Sketcher.Constraint("Coincident", 3, 2, 0, 1))
sketch8.addConstraint(Sketcher.Constraint("Vertical", 0))
sketch8.addConstraint(Sketcher.Constraint("Horizontal", 1))
sketch8.addConstraint(Sketcher.Constraint("Vertical", 2))
sketch8.addConstraint(Sketcher.Constraint("Horizontal", 3))
sketch8.addConstraint(Sketcher.Constraint("DistanceX", 1, 2, 1, 1, 2.0))
sketch8.addConstraint(Sketcher.Constraint("DistanceY", 0, 2, 0, 1, 55.24))
sketch8.addConstraint(Sketcher.Constraint("DistanceX", 0, 2, -1, 1, 96.129171))
sketch8.addConstraint(Sketcher.Constraint("DistanceY", 0, 2, -1, 1, 18.837469))
pad7 = doc.addObject("PartDesign::Pad", "Pad006")
body.addObject(pad7)
pad7.Profile = sketch8
pad7.Length = 2
pad7.Reversed = True

# Sketch on XY plane
sketch9 = doc.addObject("Sketcher::SketchObject", "Sketch008")
body.addObject(sketch9)
sketch9.AttachmentSupport = (doc.XY_Plane, [""])
sketch9.MapMode = "FlatFace"
sketch9.addGeometry(Part.Circle(V(-90.129171, -56.747469, 0), V(0, 0, 1), 1.25), False)
sketch9.addGeometry(Part.Circle(V(80.300829, -56.747469, 0), V(0, 0, 1), 1.25), False)
sketch9.addGeometry(Part.Circle(V(80.300829, 46.402531, 0), V(0, 0, 1), 1.25), False)
sketch9.addGeometry(Part.Circle(V(-90.129171, 46.402531, 0), V(0, 0, 1), 1.25), False)
sketch9.addConstraint(Sketcher.Constraint("Equal", 0, 1))
sketch9.addConstraint(Sketcher.Constraint("Equal", 1, 2))
sketch9.addConstraint(Sketcher.Constraint("Equal", 2, 3))
sketch9.addConstraint(Sketcher.Constraint("Horizontal", 0, 3, 1, 3))
sketch9.addConstraint(Sketcher.Constraint("Horizontal", 2, 3, 3, 3))
sketch9.addConstraint(Sketcher.Constraint("Vertical", 1, 3, 2, 3))
sketch9.addConstraint(Sketcher.Constraint("Vertical", 0, 3, 3, 3))
sketch9.addConstraint(Sketcher.Constraint("Diameter", 0, 2.5))
sketch9.addConstraint(Sketcher.Constraint("DistanceX", 0, 3, 1, 3, 170.43))
sketch9.addConstraint(Sketcher.Constraint("DistanceY", 1, 3, 2, 3, 103.15))
sketch9.addConstraint(Sketcher.Constraint("DistanceX", 0, 3, -1, 1, 90.129171))
sketch9.addConstraint(Sketcher.Constraint("DistanceY", 0, 3, -1, 1, 56.747469))
pocket2 = doc.addObject("PartDesign::Pocket", "Pocket001")
body.addObject(pocket2)
pocket2.Profile = sketch9
pocket2.Type = "ThroughAll"

# Sketch on XY plane
sketch10 = doc.addObject("Sketcher::SketchObject", "Sketch009")
body.addObject(sketch10)
sketch10.AttachmentSupport = (doc.XY_Plane, [""])
sketch10.MapMode = "FlatFace"
sketch10.AttachmentOffset = App.Placement(V(0, 0, -8), App.Rotation())
sketch10.addGeometry(Part.Circle(V(80.300829, -4.767469, 0), V(0, 0, 1), 1.25), False)
sketch10.addGeometry(Part.Circle(V(-4.909171, -56.747469, 0), V(0, 0, 1), 1.25), False)
sketch10.addGeometry(Part.Circle(V(-4.909171, 51.252531, 0), V(0, 0, 1), 1.25), False)
sketch10.addGeometry(Part.Circle(V(-90.129171, -26.747469, 0), V(0, 0, 1), 1.25), False)
sketch10.addGeometry(Part.Circle(V(-90.129171, 6.592531, 0), V(0, 0, 1), 1.25), False)
sketch10.addConstraint(Sketcher.Constraint("Equal", 0, 1))
sketch10.addConstraint(Sketcher.Constraint("Equal", 1, 2))
sketch10.addConstraint(Sketcher.Constraint("Equal", 2, 3))
sketch10.addConstraint(Sketcher.Constraint("Equal", 3, 4))
sketch10.addConstraint(Sketcher.Constraint("Vertical", 1, 3, 2, 3))
sketch10.addConstraint(Sketcher.Constraint("Vertical", 3, 3, 4, 3))
sketch10.addConstraint(Sketcher.Constraint("Diameter", 0, 2.5))
sketch10.addConstraint(Sketcher.Constraint("DistanceY", 1, 3, 2, 3, 108.0))
sketch10.addConstraint(Sketcher.Constraint("DistanceY", 1, 3, 3, 3, 30.0))
sketch10.addConstraint(Sketcher.Constraint("DistanceX", 1, 3, 0, 3, 85.21))
sketch10.addConstraint(Sketcher.Constraint("DistanceY", 1, 3, 0, 3, 51.98))
sketch10.addConstraint(Sketcher.Constraint("DistanceX", 3, 3, 1, 3, 85.22))
sketch10.addConstraint(Sketcher.Constraint("DistanceY", 3, 3, 4, 3, 33.34))
sketch10.addConstraint(Sketcher.Constraint("DistanceX", -1, 1, 0, 3, 80.300829))
sketch10.addConstraint(Sketcher.Constraint("DistanceY", 0, 3, -1, 1, 4.767469))
pocket3 = doc.addObject("PartDesign::Pocket", "Pocket002")
body.addObject(pocket3)
pocket3.Profile = sketch10
pocket3.Type = "ThroughAll"
pocket3.Reversed = True

doc.recompute()
